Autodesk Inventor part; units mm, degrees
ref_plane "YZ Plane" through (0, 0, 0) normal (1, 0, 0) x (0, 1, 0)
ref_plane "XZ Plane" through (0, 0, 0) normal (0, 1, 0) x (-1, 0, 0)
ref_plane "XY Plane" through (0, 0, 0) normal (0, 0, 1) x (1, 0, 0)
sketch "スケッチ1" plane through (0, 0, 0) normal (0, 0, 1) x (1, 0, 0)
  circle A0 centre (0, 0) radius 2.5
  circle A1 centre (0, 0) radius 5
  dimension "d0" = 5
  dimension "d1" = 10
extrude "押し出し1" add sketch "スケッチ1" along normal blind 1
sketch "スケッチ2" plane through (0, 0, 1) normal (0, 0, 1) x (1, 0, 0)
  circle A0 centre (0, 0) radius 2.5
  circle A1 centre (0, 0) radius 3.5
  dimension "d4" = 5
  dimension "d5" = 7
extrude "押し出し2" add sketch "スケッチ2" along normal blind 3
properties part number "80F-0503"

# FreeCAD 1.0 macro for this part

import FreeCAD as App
import Part
import Sketcher

V = App.Vector
Q = App.Units.Quantity

doc = App.newDocument("Part")
body = doc.addObject("PartDesign::Body", "Body")

# Sketch on XY plane
sketch1 = body.newObject("Sketcher::SketchObject", "Sketch")
sketch1.AttachmentSupport = (doc.getObject("XY_Plane"), [""])
sketch1.MapMode = "FlatFace"
sketch1.addGeometry([
    Part.Circle(V(0, 0, 0), V(0, 0, 1), 5),
    Part.Circle(V(0, 0, 0), V(0, 0, 1), 2.5),
], False)
sketch1.addConstraint([
    Sketcher.Constraint("Coincident", 0, 3, -1, 1),
    Sketcher.Constraint("Coincident", 1, 3, -1, 1),
    Sketcher.Constraint("Diameter", 0, Q("10 mm")),
    Sketcher.Constraint("Diameter", 1, Q("5 mm")),
])
pad1 = body.newObject("PartDesign::Pad", "Pad")
pad1.Profile = sketch1
pad1.Length = 1

# Sketch on XY plane
sketch2 = body.newObject("Sketcher::SketchObject", "Sketch001")
sketch2.AttachmentSupport = (doc.getObject("XY_Plane"), [""])
sketch2.MapMode = "FlatFace"
sketch2.AttachmentOffset = App.Placement(V(0, 0, 1), App.Rotation())
sketch2.addGeometry([
    Part.Circle(V(0, 0, 0), V(0, 0, 1), 3.5),
    Part.Circle(V(0, 0, 0), V(0, 0, 1), 2.5),
], False)
sketch2.addConstraint([
    Sketcher.Constraint("Coincident", 0, 3, -1, 1),
    Sketcher.Constraint("Coincident", 1, 3, -1, 1),
    Sketcher.Constraint("Diameter", 0, Q("7 mm")),
    Sketcher.Constraint("Diameter", 1, Q("5 mm")),
])
pad2 = body.newObject("PartDesign::Pad", "Pad001")
pad2.Profile = sketch2
pad2.Length = 3

doc.recompute()
